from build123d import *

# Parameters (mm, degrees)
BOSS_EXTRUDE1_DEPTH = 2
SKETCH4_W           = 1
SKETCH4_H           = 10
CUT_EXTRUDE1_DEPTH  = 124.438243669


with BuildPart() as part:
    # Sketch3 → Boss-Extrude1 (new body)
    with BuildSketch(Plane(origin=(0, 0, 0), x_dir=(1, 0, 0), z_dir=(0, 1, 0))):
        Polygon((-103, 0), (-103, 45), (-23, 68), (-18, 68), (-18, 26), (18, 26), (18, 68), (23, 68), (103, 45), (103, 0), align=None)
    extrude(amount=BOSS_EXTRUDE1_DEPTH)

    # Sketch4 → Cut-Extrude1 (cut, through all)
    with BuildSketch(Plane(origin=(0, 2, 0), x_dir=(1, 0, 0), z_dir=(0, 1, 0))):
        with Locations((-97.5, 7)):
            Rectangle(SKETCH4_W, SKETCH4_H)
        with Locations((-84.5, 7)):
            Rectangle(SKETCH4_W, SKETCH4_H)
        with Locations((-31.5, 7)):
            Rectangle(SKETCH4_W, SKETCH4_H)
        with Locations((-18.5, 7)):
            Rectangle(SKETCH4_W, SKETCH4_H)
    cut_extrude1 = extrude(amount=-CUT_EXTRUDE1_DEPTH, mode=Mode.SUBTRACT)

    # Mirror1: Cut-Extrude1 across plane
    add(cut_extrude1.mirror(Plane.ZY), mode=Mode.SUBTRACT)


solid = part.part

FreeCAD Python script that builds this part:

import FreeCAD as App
import Part
import Sketcher


def add_polygon(sketch, points):
    """Adds a closed chain of lines whose ends are joined by coincident constraints."""
    first, n = sketch.GeometryCount, len(points)
    for a, b in zip(points, points[1:] + points[:1]):
        sketch.addGeometry(Part.LineSegment(App.Vector(*a, 0), App.Vector(*b, 0)), False)
    for i in range(n):
        sketch.addConstraint(Sketcher.Constraint("Coincident", first + i, 2, first + (i + 1) % n, 1))

doc = App.newDocument("Part")
body = doc.addObject("PartDesign::Body", "Body")

sketch1 = body.newObject("Sketcher::SketchObject", "Sketch")
sketch1.AttachmentSupport = (doc.getObject("XZ_Plane"), [""])
sketch1.MapMode = "FlatFace"
add_polygon(sketch1, [(-103, -45), (-103, 0), (103, 0), (103, -45), (23, -68), (18, -68), (18, -26), (-18, -26), (-18, -68), (-23, -68)])
sketch1.addConstraint(Sketcher.Constraint("Vertical", 0))
sketch1.addConstraint(Sketcher.Constraint("Horizontal", 1))
sketch1.addConstraint(Sketcher.Constraint("Vertical", 2))
sketch1.addConstraint(Sketcher.Constraint("Horizontal", 4))
sketch1.addConstraint(Sketcher.Constraint("Vertical", 5))
sketch1.addConstraint(Sketcher.Constraint("Horizontal", 6))
sketch1.addConstraint(Sketcher.Constraint("Vertical", 7))
sketch1.addConstraint(Sketcher.Constraint("Horizontal", 8))
sketch1.addConstraint(Sketcher.Constraint("Symmetric", 0, 2, 1, 2, -1, 1))
sketch1.addConstraint(Sketcher.Constraint("Symmetric", 4, 2, 7, 2, -2))
sketch1.addConstraint(Sketcher.Constraint("Horizontal", 2, 2, 9, 2))
sketch1.addConstraint(Sketcher.Constraint("Equal", 4, 8))
sketch1.addConstraint(Sketcher.Constraint("DistanceX", 1, 1, 1, 2, 206.0))
sketch1.addConstraint(Sketcher.Constraint("DistanceX", 4, 2, 4, 1, 5.0))
sketch1.addConstraint(Sketcher.Constraint("DistanceX", 6, 2, 6, 1, 36.0))
sketch1.addConstraint(Sketcher.Constraint("DistanceY", 0, 1, 0, 2, 45.0))
sketch1.addConstraint(Sketcher.Constraint("DistanceY", 5, 1, 5, 2, 42.0))
sketch1.addConstraint(Sketcher.Constraint("DistanceY", 3, 2, -1, 1, 68.0))
pad1 = body.newObject("PartDesign::Pad", "Pad")
pad1.Profile = sketch1
pad1.Length = 2
pad1.Reversed = True

sketch2 = body.newObject("Sketcher::SketchObject", "Sketch001")
sketch2.AttachmentSupport = (doc.getObject("XZ_Plane"), [""])
sketch2.MapMode = "FlatFace"
sketch2.AttachmentOffset = App.Placement(App.Vector(0, 0, -2), App.Rotation())
add_polygon(sketch2, [(-98, -12), (-98, -2), (-97, -2), (-97, -12)])
add_polygon(sketch2, [(-85, -12), (-85, -2), (-84, -2), (-84, -12)])
add_polygon(sketch2, [(-32, -12), (-32, -2), (-31, -2), (-31, -12)])
add_polygon(sketch2, [(-19, -12), (-19, -2), (-18, -2), (-18, -12)])
sketch2.addConstraint(Sketcher.Constraint("Vertical", 0))
sketch2.addConstraint(Sketcher.Constraint("Horizontal", 1))
sketch2.addConstraint(Sketcher.Constraint("Vertical", 2))
sketch2.addConstraint(Sketcher.Constraint("Horizontal", 3))
sketch2.addConstraint(Sketcher.Constraint("Vertical", 4))
sketch2.addConstraint(Sketcher.Constraint("Horizontal", 5))
sketch2.addConstraint(Sketcher.Constraint("Vertical", 6))
sketch2.addConstraint(Sketcher.Constraint("Horizontal", 7))
sketch2.addConstraint(Sketcher.Constraint("Vertical", 8))
sketch2.addConstraint(Sketcher.Constraint("Horizontal", 9))
sketch2.addConstraint(Sketcher.Constraint("Vertical", 10))
sketch2.addConstraint(Sketcher.Constraint("Horizontal", 11))
sketch2.addConstraint(Sketcher.Constraint("Vertical", 12))
sketch2.addConstraint(Sketcher.Constraint("Horizontal", 13))
sketch2.addConstraint(Sketcher.Constraint("Vertical", 14))
sketch2.addConstraint(Sketcher.Constraint("Horizontal", 15))
sketch2.addConstraint(Sketcher.Constraint("Horizontal", 1, 2, 4, 2))
sketch2.addConstraint(Sketcher.Constraint("Horizontal", 3, 2, 6, 2))
sketch2.addConstraint(Sketcher.Constraint("Horizontal", 5, 2, 8, 2))
sketch2.addConstraint(Sketcher.Constraint("Horizontal", 7, 2, 10, 2))
sketch2.addConstraint(Sketcher.Constraint("Horizontal", 9, 2, 12, 2))
sketch2.addConstraint(Sketcher.Constraint("Horizontal", 11, 2, 14, 2))
sketch2.addConstraint(Sketcher.Constraint("Equal", 3, 5))
sketch2.addConstraint(Sketcher.Constraint("Equal", 7, 9))
sketch2.addConstraint(Sketcher.Constraint("Equal", 11, 13))
sketch2.addConstraint(Sketcher.Constraint("DistanceX", 1, 1, 1, 2, 1.0))
sketch2.addConstraint(Sketcher.Constraint("DistanceY", 0, 1, 0, 2, 10.0))
sketch2.addConstraint(Sketcher.Constraint("DistanceX", 0, 2, -1, 1, 98.0))
sketch2.addConstraint(Sketcher.Constraint("DistanceY", 0, 2, -1, 1, 2.0))
sketch2.addConstraint(Sketcher.Constraint("DistanceX", 4, 2, -1, 1, 85.0))
sketch2.addConstraint(Sketcher.Constraint("DistanceX", 8, 2, -1, 1, 32.0))
sketch2.addConstraint(Sketcher.Constraint("DistanceX", 12, 2, -1, 1, 19.0))
pocket1 = body.newObject("PartDesign::Pocket", "Pocket")
pocket1.Profile = sketch2
pocket1.Type = "ThroughAll"
pocket1.Reversed = True
doc.recompute()

mirrored = body.newObject("PartDesign::Mirrored", "Mirrored")
mirrored.Originals = [pocket1]
mirrored.MirrorPlane = (doc.getObject("YZ_Plane"), [""])
body.Tip = mirrored

doc.recompute()
